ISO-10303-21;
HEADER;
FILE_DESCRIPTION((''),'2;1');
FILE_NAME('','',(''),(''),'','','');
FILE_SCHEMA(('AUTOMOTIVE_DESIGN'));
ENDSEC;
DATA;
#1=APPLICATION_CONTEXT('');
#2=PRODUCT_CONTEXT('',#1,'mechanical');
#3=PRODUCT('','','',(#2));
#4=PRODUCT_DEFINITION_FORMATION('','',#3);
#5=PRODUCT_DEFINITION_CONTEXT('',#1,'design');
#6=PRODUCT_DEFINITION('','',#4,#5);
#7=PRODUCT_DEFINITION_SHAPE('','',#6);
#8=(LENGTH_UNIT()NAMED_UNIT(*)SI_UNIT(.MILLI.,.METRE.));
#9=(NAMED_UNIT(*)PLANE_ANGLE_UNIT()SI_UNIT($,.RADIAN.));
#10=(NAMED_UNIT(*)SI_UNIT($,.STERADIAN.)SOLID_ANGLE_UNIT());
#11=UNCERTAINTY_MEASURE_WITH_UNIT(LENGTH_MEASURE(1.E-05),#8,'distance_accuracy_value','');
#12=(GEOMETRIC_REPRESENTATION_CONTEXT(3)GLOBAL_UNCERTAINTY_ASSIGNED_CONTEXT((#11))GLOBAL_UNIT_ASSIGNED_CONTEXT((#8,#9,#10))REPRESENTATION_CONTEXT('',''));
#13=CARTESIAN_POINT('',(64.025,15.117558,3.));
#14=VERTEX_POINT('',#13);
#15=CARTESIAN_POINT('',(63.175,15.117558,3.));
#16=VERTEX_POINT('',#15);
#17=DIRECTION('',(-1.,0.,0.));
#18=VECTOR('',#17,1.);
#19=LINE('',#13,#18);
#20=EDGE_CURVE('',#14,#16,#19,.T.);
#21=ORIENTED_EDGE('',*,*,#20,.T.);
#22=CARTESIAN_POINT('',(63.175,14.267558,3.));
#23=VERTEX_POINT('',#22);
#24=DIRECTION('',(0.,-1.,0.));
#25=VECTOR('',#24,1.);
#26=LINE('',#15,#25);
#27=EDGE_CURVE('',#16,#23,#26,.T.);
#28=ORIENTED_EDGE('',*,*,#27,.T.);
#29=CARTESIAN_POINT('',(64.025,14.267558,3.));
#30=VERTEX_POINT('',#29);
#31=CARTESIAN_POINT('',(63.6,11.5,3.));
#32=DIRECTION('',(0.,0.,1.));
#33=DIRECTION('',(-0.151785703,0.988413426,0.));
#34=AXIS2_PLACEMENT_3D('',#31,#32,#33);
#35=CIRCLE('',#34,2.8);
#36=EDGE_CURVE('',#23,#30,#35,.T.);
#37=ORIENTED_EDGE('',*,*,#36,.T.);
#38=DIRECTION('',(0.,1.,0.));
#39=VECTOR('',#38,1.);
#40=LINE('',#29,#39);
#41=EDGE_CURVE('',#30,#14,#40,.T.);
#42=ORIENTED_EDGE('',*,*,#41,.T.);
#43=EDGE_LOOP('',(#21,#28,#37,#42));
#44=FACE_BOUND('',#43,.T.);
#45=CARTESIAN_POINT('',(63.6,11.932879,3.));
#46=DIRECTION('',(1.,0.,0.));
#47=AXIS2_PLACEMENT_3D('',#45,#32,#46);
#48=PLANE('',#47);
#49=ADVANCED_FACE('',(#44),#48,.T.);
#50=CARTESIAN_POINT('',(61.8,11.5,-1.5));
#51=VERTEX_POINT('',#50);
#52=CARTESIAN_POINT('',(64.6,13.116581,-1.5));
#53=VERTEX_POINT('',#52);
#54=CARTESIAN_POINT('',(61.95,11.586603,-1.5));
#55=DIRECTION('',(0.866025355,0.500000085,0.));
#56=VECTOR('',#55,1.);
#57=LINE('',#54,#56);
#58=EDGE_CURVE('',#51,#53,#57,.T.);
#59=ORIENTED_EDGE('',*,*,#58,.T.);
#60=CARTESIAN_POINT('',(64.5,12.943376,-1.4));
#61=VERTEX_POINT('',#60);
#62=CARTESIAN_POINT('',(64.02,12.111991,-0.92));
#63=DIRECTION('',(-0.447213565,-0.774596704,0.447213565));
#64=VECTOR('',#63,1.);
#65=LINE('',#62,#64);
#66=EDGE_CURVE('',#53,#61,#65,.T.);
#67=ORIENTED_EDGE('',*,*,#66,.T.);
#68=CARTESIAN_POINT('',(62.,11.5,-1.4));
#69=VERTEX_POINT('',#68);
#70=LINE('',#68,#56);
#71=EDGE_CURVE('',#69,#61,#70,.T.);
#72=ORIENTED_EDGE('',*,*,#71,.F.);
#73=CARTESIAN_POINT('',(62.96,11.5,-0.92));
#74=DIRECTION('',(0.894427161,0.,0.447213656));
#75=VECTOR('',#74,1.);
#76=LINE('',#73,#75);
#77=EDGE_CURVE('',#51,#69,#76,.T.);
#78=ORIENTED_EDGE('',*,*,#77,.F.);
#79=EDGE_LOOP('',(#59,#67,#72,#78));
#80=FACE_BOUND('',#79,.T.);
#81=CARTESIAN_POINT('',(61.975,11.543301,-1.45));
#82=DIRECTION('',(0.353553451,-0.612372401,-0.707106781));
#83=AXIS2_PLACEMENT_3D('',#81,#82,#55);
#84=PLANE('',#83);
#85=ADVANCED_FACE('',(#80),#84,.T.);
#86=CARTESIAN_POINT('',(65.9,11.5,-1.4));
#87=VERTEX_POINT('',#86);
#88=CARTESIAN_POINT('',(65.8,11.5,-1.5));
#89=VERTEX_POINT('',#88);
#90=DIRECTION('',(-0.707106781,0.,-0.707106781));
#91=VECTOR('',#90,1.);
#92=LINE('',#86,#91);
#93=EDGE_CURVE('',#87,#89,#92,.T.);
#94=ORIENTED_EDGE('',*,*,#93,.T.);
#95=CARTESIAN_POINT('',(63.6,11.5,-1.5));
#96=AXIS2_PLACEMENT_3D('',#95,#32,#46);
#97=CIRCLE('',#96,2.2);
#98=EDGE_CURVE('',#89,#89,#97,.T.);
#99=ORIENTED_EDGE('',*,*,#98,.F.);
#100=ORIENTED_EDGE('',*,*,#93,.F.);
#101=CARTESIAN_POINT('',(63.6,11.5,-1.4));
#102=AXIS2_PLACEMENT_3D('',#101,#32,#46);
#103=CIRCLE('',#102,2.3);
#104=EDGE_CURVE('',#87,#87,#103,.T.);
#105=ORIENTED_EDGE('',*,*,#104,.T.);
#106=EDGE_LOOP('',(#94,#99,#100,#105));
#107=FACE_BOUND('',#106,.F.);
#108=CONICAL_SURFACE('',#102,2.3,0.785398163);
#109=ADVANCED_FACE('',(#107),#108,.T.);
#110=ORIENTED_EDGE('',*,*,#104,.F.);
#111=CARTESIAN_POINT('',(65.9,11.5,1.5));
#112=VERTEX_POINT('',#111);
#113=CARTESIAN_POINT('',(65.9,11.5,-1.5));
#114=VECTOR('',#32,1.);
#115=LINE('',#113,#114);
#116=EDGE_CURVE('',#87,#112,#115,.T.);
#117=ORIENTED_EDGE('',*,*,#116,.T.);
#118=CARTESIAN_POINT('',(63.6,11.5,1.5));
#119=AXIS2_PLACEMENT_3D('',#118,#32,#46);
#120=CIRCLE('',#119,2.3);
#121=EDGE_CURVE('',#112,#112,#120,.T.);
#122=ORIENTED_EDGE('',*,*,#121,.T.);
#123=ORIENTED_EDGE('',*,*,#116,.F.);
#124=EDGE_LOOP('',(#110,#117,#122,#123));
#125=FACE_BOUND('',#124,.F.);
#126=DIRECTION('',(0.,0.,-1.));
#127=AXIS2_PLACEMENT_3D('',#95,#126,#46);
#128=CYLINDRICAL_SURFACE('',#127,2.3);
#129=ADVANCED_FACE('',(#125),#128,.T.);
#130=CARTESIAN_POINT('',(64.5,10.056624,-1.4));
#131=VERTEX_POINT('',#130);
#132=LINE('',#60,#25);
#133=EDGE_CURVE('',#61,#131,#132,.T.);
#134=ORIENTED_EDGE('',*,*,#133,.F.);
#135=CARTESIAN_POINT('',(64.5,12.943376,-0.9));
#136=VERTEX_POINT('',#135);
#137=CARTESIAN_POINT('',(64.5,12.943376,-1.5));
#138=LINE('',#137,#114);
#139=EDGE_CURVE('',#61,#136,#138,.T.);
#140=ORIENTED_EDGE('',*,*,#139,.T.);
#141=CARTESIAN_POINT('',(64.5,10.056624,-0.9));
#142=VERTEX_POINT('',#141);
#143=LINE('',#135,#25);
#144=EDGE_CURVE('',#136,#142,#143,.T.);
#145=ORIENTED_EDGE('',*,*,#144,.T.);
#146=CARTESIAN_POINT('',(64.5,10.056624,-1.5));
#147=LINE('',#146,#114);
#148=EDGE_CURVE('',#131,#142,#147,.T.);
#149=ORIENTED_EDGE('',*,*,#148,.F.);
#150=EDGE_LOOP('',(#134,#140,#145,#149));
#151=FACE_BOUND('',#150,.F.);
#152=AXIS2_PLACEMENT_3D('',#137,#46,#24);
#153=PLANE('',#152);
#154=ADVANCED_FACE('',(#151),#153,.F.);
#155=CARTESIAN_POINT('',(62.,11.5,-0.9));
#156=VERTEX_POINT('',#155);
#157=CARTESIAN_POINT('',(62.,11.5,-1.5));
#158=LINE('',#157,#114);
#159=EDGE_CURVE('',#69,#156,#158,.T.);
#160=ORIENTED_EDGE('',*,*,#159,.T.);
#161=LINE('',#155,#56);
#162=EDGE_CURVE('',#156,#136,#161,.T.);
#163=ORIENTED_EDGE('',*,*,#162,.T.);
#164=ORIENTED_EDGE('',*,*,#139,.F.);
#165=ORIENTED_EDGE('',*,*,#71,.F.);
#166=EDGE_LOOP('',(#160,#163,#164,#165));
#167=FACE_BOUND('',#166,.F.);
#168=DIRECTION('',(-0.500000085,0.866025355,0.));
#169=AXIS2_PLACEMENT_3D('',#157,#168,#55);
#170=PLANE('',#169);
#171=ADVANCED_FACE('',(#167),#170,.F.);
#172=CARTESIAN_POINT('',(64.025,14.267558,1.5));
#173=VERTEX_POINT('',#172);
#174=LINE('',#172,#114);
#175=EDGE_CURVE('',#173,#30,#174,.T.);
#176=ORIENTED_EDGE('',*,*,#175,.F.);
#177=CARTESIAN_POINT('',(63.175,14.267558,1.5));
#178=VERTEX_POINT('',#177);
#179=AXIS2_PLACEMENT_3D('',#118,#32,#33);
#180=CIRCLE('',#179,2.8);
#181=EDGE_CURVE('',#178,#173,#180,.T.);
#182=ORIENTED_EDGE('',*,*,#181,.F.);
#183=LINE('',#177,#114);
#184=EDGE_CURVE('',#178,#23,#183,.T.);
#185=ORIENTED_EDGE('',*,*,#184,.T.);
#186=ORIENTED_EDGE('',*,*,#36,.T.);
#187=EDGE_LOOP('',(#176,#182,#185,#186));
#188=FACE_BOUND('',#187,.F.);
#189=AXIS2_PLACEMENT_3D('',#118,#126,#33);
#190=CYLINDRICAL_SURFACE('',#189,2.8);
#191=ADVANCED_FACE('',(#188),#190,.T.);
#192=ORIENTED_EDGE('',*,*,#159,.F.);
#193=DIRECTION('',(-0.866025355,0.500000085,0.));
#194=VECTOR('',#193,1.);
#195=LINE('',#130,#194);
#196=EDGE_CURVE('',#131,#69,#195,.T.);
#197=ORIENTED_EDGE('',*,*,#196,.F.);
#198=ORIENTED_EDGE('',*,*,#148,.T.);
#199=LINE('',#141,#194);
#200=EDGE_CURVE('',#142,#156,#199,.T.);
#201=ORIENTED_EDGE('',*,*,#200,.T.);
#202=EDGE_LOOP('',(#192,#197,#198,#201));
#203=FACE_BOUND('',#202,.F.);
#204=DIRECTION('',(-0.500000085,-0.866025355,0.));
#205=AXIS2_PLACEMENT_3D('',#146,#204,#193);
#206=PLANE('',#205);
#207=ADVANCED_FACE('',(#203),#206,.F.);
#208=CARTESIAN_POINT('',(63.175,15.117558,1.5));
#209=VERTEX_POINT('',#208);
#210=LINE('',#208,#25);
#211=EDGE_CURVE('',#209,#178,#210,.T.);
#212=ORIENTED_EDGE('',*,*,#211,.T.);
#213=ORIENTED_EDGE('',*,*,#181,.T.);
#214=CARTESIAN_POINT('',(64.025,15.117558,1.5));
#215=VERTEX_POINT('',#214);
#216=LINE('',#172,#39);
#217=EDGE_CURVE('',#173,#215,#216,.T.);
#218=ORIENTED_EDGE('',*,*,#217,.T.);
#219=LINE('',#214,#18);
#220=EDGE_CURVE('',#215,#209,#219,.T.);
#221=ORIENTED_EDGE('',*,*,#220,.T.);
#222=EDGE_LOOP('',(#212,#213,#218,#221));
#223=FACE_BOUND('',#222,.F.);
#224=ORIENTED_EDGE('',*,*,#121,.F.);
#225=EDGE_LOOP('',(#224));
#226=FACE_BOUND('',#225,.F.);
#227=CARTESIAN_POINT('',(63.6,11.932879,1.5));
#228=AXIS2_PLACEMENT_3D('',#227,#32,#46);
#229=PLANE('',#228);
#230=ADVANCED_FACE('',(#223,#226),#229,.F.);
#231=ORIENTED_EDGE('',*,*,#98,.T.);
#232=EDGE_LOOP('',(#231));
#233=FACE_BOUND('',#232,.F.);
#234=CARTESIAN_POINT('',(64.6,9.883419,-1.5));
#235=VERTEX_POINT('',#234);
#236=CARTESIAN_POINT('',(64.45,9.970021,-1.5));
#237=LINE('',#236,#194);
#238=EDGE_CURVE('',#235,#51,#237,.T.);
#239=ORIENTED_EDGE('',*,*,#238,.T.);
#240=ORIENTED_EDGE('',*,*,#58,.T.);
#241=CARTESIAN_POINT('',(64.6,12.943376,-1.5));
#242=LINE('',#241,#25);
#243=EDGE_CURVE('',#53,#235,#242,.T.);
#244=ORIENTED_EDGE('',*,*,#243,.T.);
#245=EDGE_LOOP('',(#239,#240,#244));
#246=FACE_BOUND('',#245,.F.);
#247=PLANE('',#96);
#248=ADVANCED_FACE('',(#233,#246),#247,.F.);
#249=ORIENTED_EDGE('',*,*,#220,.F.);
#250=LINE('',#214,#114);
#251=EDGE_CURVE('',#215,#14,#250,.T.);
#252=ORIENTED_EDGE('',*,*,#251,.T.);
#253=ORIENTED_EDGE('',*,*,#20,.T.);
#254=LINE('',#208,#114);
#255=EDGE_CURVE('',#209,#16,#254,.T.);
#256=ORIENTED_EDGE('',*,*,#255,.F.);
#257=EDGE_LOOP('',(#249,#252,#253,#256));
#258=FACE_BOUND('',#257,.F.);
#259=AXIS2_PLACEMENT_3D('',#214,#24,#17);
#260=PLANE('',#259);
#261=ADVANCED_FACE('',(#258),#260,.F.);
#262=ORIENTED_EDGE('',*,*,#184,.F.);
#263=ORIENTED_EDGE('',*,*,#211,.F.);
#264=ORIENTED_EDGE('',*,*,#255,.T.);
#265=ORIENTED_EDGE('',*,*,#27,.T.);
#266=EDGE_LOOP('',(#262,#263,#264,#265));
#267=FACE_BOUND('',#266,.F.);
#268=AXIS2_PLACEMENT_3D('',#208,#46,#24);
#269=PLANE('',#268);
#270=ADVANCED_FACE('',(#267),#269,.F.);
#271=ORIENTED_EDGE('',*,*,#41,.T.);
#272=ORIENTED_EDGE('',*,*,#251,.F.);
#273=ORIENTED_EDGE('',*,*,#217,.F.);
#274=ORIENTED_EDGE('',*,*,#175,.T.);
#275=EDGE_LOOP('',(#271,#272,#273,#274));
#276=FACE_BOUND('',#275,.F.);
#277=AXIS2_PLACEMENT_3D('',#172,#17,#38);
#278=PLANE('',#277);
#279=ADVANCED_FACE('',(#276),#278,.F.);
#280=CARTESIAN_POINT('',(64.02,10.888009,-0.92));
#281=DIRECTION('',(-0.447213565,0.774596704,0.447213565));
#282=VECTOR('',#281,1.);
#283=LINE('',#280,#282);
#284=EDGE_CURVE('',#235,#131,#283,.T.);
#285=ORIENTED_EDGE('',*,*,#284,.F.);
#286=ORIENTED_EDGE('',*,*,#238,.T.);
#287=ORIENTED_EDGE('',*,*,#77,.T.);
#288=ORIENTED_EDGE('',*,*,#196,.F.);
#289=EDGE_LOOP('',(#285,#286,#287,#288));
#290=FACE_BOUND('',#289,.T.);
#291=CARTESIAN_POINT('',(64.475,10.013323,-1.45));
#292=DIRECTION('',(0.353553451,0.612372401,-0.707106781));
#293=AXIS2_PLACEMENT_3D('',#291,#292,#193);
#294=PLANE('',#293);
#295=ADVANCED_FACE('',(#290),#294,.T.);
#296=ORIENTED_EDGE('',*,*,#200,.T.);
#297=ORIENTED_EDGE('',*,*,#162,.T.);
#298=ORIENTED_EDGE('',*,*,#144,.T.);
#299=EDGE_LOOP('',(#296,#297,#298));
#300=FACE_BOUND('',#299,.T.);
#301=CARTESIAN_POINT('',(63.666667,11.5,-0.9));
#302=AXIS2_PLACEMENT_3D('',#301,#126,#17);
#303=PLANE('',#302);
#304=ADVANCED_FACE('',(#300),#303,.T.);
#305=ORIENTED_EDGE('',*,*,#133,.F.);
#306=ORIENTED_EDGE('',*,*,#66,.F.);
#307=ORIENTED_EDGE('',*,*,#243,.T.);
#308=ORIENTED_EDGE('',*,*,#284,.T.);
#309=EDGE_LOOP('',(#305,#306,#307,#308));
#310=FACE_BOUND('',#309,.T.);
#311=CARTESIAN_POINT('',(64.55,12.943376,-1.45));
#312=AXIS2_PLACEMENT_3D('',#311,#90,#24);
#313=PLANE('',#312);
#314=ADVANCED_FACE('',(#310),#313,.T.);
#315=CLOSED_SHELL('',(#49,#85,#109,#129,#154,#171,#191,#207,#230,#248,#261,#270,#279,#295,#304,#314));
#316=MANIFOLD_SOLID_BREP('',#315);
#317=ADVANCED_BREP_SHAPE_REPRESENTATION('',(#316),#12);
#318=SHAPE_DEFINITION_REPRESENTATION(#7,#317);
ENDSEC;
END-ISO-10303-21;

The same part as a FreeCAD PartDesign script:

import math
import FreeCAD as App
import Part
import Sketcher
from FreeCAD import Vector
Q = App.Units.Quantity


def edges_at(feature, points):
    """Names of the edges that pass closest to the given points."""
    edges = feature.Shape.Edges
    near = lambda p: min(range(len(edges)), key=lambda i: edges[i].distToShape(Part.Vertex(*p))[0])
    return sorted({f"Edge{near(p) + 1}" for p in points})

doc = App.newDocument("Part")
body = doc.addObject("PartDesign::Body", "Body")

# Sketch on XY plane
sketch1 = body.newObject("Sketcher::SketchObject", "Sketch")
sketch1.AttachmentSupport = (doc.getObject("XY_Plane"), [""])
sketch1.MapMode = "FlatFace"
sketch1.addGeometry(Part.Circle(Vector(0, 0, 0), Vector(0, 0, 1), 2.3), False)
sketch1.addConstraint(Sketcher.Constraint("Coincident", 0, 3, -1, 1))
sketch1.addConstraint(Sketcher.Constraint("Diameter", 0, 4.6))
pad1 = body.newObject("PartDesign::Pad", "Pad")
pad1.Profile = sketch1
pad1.Length = 3

# Sketch on XY plane
sketch2 = body.newObject("Sketcher::SketchObject", "Sketch001")
sketch2.AttachmentSupport = (doc.getObject("XY_Plane"), [""])
sketch2.MapMode = "FlatFace"
sketch2.AttachmentOffset = App.Placement(Vector(0, 0, 3), App.Rotation())
sketch2.addGeometry(Part.LineSegment(Vector(0.425, 2.767558, 0), Vector(0.425, 3.617558, 0)), False)
sketch2.addGeometry(Part.LineSegment(Vector(0.425, 3.617558, 0), Vector(-0.425, 3.617558, 0)), False)
sketch2.addGeometry(Part.LineSegment(Vector(-0.425, 3.617558, 0), Vector(-0.425, 2.767558, 0)), False)
sketch2.addGeometry(Part.ArcOfCircle(Part.Circle(Vector(0, 0, 0), Vector(0, 0, 1), 2.8), math.radians(98.730425), math.radians(441.269575)), False)
sketch2.addConstraint(Sketcher.Constraint("Coincident", 0, 2, 1, 1))
sketch2.addConstraint(Sketcher.Constraint("Coincident", 1, 2, 2, 1))
sketch2.addConstraint(Sketcher.Constraint("Coincident", 2, 2, 3, 1))
sketch2.addConstraint(Sketcher.Constraint("Coincident", 3, 2, 0, 1))
sketch2.addConstraint(Sketcher.Constraint("Vertical", 0))
sketch2.addConstraint(Sketcher.Constraint("Horizontal", 1))
sketch2.addConstraint(Sketcher.Constraint("Vertical", 2))
sketch2.addConstraint(Sketcher.Constraint("Coincident", 3, 3, -1, 1))
sketch2.addConstraint(Sketcher.Constraint("Horizontal", 2, 2, 3, 2))
sketch2.addConstraint(Sketcher.Constraint("Equal", 1, 0))
sketch2.addConstraint(Sketcher.Constraint("Radius", 3, 2.8))
sketch2.addConstraint(Sketcher.Constraint("DistanceX", 1, 2, 1, 1, 0.85))
pad2 = body.newObject("PartDesign::Pad", "Pad001")
pad2.Profile = sketch2
pad2.Length = 1.5

# Sketch on XY plane
sketch3 = body.newObject("Sketcher::SketchObject", "Sketch002")
sketch3.AttachmentSupport = (doc.getObject("XY_Plane"), [""])
sketch3.MapMode = "FlatFace"
sketch3.addGeometry(Part.LineSegment(Vector(-1.6, 0, 0), Vector(0.9, -1.443376, 0)), False)
sketch3.addGeometry(Part.LineSegment(Vector(0.9, -1.443376, 0), Vector(0.9, 1.443376, 0)), False)
sketch3.addGeometry(Part.LineSegment(Vector(0.9, 1.443376, 0), Vector(-1.6, 0, 0)), False)
sketch3.addConstraint(Sketcher.Constraint("Coincident", 0, 2, 1, 1))
sketch3.addConstraint(Sketcher.Constraint("Coincident", 1, 2, 2, 1))
sketch3.addConstraint(Sketcher.Constraint("Coincident", 2, 2, 0, 1))
sketch3.addConstraint(Sketcher.Constraint("Vertical", 1))
sketch3.addConstraint(Sketcher.Constraint("PointOnObject", 2, 2, -1))
sketch3.addConstraint(Sketcher.Constraint("Equal", 0, 2))
sketch3.addConstraint(Sketcher.Constraint("Angle", 0, Q("-30.000006 deg")))
sketch3.addConstraint(Sketcher.Constraint("DistanceX", -1, 1, 0, 2, 0.9))
sketch3.addConstraint(Sketcher.Constraint("DistanceX", 2, 2, -1, 1, 1.6))
pocket1 = body.newObject("PartDesign::Pocket", "Pocket")
pocket1.Profile = sketch3
pocket1.Length = 0.6
pocket1.Reversed = True
doc.recompute()

chamfer = body.newObject("PartDesign::Chamfer", "Chamfer")
chamfer.Base = (pocket1, edges_at(pocket1, [
    (-0.35, -0.722, 0),
    (0.9, 0, 0),
    (-0.35, 0.722, 0),
    (-2.3, 0, 0),
]))
chamfer.Size = 0.1
body2 = doc.addObject("PartDesign::Body", "Body001")
doc.recompute()

body.Placement = App.Placement(Vector(63.6, 11.5, -1.5), App.Rotation(Vector(0, 0, 1), 0))
boolean = body2.newObject("PartDesign::Boolean", "Boolean")
boolean.Type = "Fuse"
boolean.addObjects([body])

doc.recompute()
